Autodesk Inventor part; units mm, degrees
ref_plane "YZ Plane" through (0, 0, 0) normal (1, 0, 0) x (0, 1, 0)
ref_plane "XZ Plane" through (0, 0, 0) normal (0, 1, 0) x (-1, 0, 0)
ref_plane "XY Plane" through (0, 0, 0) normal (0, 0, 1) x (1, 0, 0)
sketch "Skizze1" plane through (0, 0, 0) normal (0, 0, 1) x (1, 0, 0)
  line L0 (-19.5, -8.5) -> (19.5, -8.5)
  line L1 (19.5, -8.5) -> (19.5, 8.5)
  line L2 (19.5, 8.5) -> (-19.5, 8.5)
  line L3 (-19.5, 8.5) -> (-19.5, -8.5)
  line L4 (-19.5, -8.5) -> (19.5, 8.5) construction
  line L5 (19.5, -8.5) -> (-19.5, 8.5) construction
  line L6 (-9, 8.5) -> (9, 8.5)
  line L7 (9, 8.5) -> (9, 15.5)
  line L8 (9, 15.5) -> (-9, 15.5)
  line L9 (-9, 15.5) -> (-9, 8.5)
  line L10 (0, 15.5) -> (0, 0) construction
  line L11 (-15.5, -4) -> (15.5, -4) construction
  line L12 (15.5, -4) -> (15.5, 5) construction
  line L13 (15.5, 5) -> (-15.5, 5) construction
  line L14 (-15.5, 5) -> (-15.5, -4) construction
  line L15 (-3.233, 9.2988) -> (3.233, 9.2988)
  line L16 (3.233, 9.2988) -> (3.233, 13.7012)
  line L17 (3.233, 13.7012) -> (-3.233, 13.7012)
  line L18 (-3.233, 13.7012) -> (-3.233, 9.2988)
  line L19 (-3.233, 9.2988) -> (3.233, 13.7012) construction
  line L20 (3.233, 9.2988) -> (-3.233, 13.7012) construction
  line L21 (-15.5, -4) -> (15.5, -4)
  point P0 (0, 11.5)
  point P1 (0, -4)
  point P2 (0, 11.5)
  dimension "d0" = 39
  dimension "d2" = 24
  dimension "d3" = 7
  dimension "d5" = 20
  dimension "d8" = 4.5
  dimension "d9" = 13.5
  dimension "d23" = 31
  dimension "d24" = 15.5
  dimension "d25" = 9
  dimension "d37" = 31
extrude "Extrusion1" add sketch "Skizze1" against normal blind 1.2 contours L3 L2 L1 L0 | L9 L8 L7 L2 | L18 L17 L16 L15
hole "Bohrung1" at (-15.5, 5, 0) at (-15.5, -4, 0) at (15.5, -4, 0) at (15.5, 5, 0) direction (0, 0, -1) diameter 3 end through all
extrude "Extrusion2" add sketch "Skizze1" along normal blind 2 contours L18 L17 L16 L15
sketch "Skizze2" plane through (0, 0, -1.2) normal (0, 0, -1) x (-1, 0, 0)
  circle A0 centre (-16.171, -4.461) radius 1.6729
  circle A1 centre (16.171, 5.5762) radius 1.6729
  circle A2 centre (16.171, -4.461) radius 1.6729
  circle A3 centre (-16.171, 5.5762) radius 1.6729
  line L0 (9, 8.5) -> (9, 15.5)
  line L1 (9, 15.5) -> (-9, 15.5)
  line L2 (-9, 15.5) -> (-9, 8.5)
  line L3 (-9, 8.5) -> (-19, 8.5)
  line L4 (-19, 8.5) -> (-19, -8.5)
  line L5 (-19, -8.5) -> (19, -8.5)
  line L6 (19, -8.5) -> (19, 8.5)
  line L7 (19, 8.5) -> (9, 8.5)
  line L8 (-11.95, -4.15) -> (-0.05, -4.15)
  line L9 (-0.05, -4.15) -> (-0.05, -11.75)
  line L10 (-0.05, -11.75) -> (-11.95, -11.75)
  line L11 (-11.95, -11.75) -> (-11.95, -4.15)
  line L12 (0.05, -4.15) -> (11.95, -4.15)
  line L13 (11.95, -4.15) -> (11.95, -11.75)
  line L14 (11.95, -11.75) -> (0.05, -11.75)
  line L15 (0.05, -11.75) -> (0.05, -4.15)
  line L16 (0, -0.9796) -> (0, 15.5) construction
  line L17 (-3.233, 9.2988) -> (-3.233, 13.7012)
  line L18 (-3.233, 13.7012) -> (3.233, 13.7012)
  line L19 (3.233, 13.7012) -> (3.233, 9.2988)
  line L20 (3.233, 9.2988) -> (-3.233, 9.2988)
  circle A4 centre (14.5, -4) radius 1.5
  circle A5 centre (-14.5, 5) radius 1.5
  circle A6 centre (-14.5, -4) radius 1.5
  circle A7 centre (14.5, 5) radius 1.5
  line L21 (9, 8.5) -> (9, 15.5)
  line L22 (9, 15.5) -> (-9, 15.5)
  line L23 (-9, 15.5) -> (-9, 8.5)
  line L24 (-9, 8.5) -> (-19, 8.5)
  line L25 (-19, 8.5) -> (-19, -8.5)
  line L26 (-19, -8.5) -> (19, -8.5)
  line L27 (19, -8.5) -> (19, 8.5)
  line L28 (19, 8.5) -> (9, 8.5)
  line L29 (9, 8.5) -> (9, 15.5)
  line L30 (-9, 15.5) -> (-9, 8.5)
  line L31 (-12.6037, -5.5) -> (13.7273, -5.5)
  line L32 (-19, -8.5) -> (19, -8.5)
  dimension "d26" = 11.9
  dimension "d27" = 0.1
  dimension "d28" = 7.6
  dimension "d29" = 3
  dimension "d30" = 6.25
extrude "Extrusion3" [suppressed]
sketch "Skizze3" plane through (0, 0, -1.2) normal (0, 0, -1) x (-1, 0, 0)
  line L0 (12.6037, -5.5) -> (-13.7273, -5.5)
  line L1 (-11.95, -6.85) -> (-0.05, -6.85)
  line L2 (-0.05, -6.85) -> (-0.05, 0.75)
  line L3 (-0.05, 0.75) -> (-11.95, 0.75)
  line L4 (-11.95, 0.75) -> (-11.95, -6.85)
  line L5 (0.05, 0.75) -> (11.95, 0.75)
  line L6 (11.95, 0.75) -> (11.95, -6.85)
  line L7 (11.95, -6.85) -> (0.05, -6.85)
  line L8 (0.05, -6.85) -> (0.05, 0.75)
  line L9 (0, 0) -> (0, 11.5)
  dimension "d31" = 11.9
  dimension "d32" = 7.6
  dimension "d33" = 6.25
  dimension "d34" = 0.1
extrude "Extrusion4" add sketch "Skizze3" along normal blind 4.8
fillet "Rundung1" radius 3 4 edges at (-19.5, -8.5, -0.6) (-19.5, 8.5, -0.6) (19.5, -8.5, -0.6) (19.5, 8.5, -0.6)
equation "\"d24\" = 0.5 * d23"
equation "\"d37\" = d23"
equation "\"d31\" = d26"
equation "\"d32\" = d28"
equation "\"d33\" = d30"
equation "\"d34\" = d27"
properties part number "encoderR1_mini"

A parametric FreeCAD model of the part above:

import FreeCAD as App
import Part
import Sketcher

V = App.Vector
Q = App.Units.Quantity


def edges_at(feature, points):
    """Names of the edges that pass closest to the given points."""
    edges = feature.Shape.Edges
    near = lambda p: min(range(len(edges)), key=lambda i: edges[i].distToShape(Part.Vertex(*p))[0])
    return sorted({f"Edge{near(p) + 1}" for p in points})

doc = App.newDocument("Part")
body = doc.addObject("PartDesign::Body", "Body")

# Sketch on XY plane
sketch1 = body.newObject("Sketcher::SketchObject", "Sketch")
sketch1.AttachmentSupport = (doc.getObject("XY_Plane"), [""])
sketch1.MapMode = "FlatFace"
sketch1.addGeometry([
    Part.LineSegment(V(-20, 8, 0), V(-20, -8, 0)),  # 0
    Part.LineSegment(V(-20, -8, 0), V(20, -8, 0)),  # 1
    Part.LineSegment(V(20, -8, 0), V(20, 8, 0)),  # 2
    Part.LineSegment(V(20, 8, 0), V(9, 8, 0)),  # 3
    Part.LineSegment(V(9, 8, 0), V(9, 16, 0)),  # 4
    Part.LineSegment(V(9, 16, 0), V(-9, 16, 0)),  # 5
    Part.LineSegment(V(-9, 16, 0), V(-9, 8, 0)),  # 6
    Part.LineSegment(V(-9, 8, 0), V(-20, 8, 0)),  # 7
], False)
sketch1.addConstraint([
    Sketcher.Constraint("Coincident", 0, 2, 1, 1),
    Sketcher.Constraint("Coincident", 1, 2, 2, 1),
    Sketcher.Constraint("Coincident", 2, 2, 3, 1),
    Sketcher.Constraint("Coincident", 3, 2, 4, 1),
    Sketcher.Constraint("Coincident", 4, 2, 5, 1),
    Sketcher.Constraint("Coincident", 5, 2, 6, 1),
    Sketcher.Constraint("Coincident", 6, 2, 7, 1),
    Sketcher.Constraint("Coincident", 7, 2, 0, 1),
    Sketcher.Constraint("Vertical", 0),
    Sketcher.Constraint("Horizontal", 1),
    Sketcher.Constraint("Vertical", 2),
    Sketcher.Constraint("Horizontal", 3),
    Sketcher.Constraint("Vertical", 4),
    Sketcher.Constraint("Horizontal", 5),
    Sketcher.Constraint("Vertical", 6),
    Sketcher.Constraint("Horizontal", 7),
    Sketcher.Constraint("Symmetric", 0, 2, 2, 2, -1, 1),
    Sketcher.Constraint("Symmetric", 3, 2, 6, 2, -2),
    Sketcher.Constraint("DistanceX", 1, 1, 1, 2, Q("39 mm")),
    Sketcher.Constraint("DistanceY", 4, 1, 4, 2, Q("7 mm")),
    Sketcher.Constraint("DistanceX", -1, 1, 3, 2, Q("9 mm")),
    Sketcher.Constraint("DistanceY", 1, 2, 4, 2, Q("24 mm")),
])
pad1 = body.newObject("PartDesign::Pad", "Pad")
pad1.Profile = sketch1
pad1.Length = 1.2
pad1.Reversed = True

# Sketch on XY plane
sketch2 = body.newObject("Sketcher::SketchObject", "Sketch001")
sketch2.AttachmentSupport = (doc.getObject("XY_Plane"), [""])
sketch2.MapMode = "FlatFace"
sketch2.addGeometry([
    Part.Circle(V(-15.5, 5, 0), V(0, 0, 1), 1.5),
    Part.Circle(V(-15.5, -4, 0), V(0, 0, 1), 1.5),
    Part.Circle(V(15.5, -4, 0), V(0, 0, 1), 1.5),
    Part.Circle(V(15.5, 5, 0), V(0, 0, 1), 1.5),
], False)
sketch2.addConstraint([
    Sketcher.Constraint("Equal", 0, 1),
    Sketcher.Constraint("Equal", 1, 2),
    Sketcher.Constraint("Equal", 2, 3),
    Sketcher.Constraint("Symmetric", 1, 3, 2, 3, -2),
    Sketcher.Constraint("Symmetric", 0, 3, 3, 3, -2),
    Sketcher.Constraint("Vertical", 0, 3, 1, 3),
    Sketcher.Constraint("Diameter", 0, Q("3 mm")),
    Sketcher.Constraint("DistanceY", -1, 1, 0, 3, Q("5 mm")),
    Sketcher.Constraint("DistanceY", 1, 3, -1, 1, Q("4 mm")),
    Sketcher.Constraint("DistanceX", 1, 3, 2, 3, Q("31 mm")),
])
doc.recompute()
hole = body.newObject("PartDesign::Hole", "Hole")
hole.Profile = sketch2
hole.ThreadType = "None"
hole.Diameter = 3
hole.DepthType = "ThroughAll"

# Sketch on XY plane
sketch3 = body.newObject("Sketcher::SketchObject", "Sketch002")
sketch3.AttachmentSupport = (doc.getObject("XY_Plane"), [""])
sketch3.MapMode = "FlatFace"
sketch3.addGeometry([
    Part.LineSegment(V(-3.2, 13.7, 0), V(-3.2, 9.3, 0)),
    Part.LineSegment(V(-3.2, 9.3, 0), V(3.2, 9.3, 0)),
    Part.LineSegment(V(3.2, 9.3, 0), V(3.2, 13.7, 0)),
    Part.LineSegment(V(3.2, 13.7, 0), V(-3.2, 13.7, 0)),
], False)
sketch3.addConstraint([
    Sketcher.Constraint("Coincident", 0, 2, 1, 1),
    Sketcher.Constraint("Coincident", 1, 2, 2, 1),
    Sketcher.Constraint("Coincident", 2, 2, 3, 1),
    Sketcher.Constraint("Coincident", 3, 2, 0, 1),
    Sketcher.Constraint("Vertical", 0),
    Sketcher.Constraint("Horizontal", 1),
    Sketcher.Constraint("Vertical", 2),
    Sketcher.Constraint("Horizontal", 3),
    Sketcher.Constraint("DistanceX", 1, 1, 1, 2, Q("6.466 mm")),
    Sketcher.Constraint("DistanceY", 0, 2, 0, 1, Q("4.4024 mm")),
    Sketcher.Constraint("DistanceX", 0, 2, -1, 1, Q("3.233 mm")),
    Sketcher.Constraint("DistanceY", -1, 1, 0, 2, Q("9.2988 mm")),
])
pad2 = body.newObject("PartDesign::Pad", "Pad001")
pad2.Profile = sketch3
pad2.Length = 2

# Sketch on XY plane
sketch4 = body.newObject("Sketcher::SketchObject", "Sketch003")
sketch4.AttachmentSupport = (doc.getObject("XY_Plane"), [""])
sketch4.MapMode = "FlatFace"
sketch4.AttachmentOffset = App.Placement(V(0, 0, -1.2), App.Rotation())
sketch4.addGeometry([
    Part.LineSegment(V(-11.95, -6.85, 0), V(-11.95, 0.75, 0)),  # 0
    Part.LineSegment(V(-11.95, 0.75, 0), V(-0.05, 0.75, 0)),  # 1
    Part.LineSegment(V(-0.05, 0.75, 0), V(-0.05, -6.85, 0)),  # 2
    Part.LineSegment(V(-0.05, -6.85, 0), V(-11.95, -6.85, 0)),  # 3
    Part.LineSegment(V(0.05, -6.85, 0), V(0.05, 0.75, 0)),  # 4
    Part.LineSegment(V(0.05, 0.75, 0), V(11.95, 0.75, 0)),  # 5
    Part.LineSegment(V(11.95, 0.75, 0), V(11.95, -6.85, 0)),  # 6
    Part.LineSegment(V(11.95, -6.85, 0), V(0.05, -6.85, 0)),  # 7
], False)
sketch4.addConstraint([
    Sketcher.Constraint("Coincident", 0, 2, 1, 1),
    Sketcher.Constraint("Coincident", 1, 2, 2, 1),
    Sketcher.Constraint("Coincident", 2, 2, 3, 1),
    Sketcher.Constraint("Coincident", 3, 2, 0, 1),
    Sketcher.Constraint("Coincident", 4, 2, 5, 1),
    Sketcher.Constraint("Coincident", 5, 2, 6, 1),
    Sketcher.Constraint("Coincident", 6, 2, 7, 1),
    Sketcher.Constraint("Coincident", 7, 2, 4, 1),
    Sketcher.Constraint("Vertical", 0),
    Sketcher.Constraint("Horizontal", 1),
    Sketcher.Constraint("Vertical", 2),
    Sketcher.Constraint("Horizontal", 3),
    Sketcher.Constraint("Vertical", 4),
    Sketcher.Constraint("Horizontal", 5),
    Sketcher.Constraint("Vertical", 6),
    Sketcher.Constraint("Horizontal", 7),
    Sketcher.Constraint("Symmetric", 1, 2, 4, 2, -2),
    Sketcher.Constraint("Symmetric", 3, 2, 6, 2, -2),
    Sketcher.Constraint("DistanceX", 1, 1, 1, 2, Q("11.9 mm")),
    Sketcher.Constraint("DistanceY", 0, 1, 0, 2, Q("7.6 mm")),
    Sketcher.Constraint("DistanceX", 1, 2, 4, 2, Q("0.1 mm")),
    Sketcher.Constraint("DistanceY", -1, 1, 0, 2, Q("0.75 mm")),
])
pad3 = body.newObject("PartDesign::Pad", "Pad002")
pad3.Profile = sketch4
pad3.Length = 4.8
pad3.Reversed = True
doc.recompute()

fillet = body.newObject("PartDesign::Fillet", "Fillet")
fillet.Base = (pad3, edges_at(pad3, [
    (-19.5, -8.5, -0.6),
    (-19.5, 8.5, -0.6),
    (19.5, -8.5, -0.6),
    (19.5, 8.5, -0.6),
]))
fillet.Radius = 3

doc.recompute()
